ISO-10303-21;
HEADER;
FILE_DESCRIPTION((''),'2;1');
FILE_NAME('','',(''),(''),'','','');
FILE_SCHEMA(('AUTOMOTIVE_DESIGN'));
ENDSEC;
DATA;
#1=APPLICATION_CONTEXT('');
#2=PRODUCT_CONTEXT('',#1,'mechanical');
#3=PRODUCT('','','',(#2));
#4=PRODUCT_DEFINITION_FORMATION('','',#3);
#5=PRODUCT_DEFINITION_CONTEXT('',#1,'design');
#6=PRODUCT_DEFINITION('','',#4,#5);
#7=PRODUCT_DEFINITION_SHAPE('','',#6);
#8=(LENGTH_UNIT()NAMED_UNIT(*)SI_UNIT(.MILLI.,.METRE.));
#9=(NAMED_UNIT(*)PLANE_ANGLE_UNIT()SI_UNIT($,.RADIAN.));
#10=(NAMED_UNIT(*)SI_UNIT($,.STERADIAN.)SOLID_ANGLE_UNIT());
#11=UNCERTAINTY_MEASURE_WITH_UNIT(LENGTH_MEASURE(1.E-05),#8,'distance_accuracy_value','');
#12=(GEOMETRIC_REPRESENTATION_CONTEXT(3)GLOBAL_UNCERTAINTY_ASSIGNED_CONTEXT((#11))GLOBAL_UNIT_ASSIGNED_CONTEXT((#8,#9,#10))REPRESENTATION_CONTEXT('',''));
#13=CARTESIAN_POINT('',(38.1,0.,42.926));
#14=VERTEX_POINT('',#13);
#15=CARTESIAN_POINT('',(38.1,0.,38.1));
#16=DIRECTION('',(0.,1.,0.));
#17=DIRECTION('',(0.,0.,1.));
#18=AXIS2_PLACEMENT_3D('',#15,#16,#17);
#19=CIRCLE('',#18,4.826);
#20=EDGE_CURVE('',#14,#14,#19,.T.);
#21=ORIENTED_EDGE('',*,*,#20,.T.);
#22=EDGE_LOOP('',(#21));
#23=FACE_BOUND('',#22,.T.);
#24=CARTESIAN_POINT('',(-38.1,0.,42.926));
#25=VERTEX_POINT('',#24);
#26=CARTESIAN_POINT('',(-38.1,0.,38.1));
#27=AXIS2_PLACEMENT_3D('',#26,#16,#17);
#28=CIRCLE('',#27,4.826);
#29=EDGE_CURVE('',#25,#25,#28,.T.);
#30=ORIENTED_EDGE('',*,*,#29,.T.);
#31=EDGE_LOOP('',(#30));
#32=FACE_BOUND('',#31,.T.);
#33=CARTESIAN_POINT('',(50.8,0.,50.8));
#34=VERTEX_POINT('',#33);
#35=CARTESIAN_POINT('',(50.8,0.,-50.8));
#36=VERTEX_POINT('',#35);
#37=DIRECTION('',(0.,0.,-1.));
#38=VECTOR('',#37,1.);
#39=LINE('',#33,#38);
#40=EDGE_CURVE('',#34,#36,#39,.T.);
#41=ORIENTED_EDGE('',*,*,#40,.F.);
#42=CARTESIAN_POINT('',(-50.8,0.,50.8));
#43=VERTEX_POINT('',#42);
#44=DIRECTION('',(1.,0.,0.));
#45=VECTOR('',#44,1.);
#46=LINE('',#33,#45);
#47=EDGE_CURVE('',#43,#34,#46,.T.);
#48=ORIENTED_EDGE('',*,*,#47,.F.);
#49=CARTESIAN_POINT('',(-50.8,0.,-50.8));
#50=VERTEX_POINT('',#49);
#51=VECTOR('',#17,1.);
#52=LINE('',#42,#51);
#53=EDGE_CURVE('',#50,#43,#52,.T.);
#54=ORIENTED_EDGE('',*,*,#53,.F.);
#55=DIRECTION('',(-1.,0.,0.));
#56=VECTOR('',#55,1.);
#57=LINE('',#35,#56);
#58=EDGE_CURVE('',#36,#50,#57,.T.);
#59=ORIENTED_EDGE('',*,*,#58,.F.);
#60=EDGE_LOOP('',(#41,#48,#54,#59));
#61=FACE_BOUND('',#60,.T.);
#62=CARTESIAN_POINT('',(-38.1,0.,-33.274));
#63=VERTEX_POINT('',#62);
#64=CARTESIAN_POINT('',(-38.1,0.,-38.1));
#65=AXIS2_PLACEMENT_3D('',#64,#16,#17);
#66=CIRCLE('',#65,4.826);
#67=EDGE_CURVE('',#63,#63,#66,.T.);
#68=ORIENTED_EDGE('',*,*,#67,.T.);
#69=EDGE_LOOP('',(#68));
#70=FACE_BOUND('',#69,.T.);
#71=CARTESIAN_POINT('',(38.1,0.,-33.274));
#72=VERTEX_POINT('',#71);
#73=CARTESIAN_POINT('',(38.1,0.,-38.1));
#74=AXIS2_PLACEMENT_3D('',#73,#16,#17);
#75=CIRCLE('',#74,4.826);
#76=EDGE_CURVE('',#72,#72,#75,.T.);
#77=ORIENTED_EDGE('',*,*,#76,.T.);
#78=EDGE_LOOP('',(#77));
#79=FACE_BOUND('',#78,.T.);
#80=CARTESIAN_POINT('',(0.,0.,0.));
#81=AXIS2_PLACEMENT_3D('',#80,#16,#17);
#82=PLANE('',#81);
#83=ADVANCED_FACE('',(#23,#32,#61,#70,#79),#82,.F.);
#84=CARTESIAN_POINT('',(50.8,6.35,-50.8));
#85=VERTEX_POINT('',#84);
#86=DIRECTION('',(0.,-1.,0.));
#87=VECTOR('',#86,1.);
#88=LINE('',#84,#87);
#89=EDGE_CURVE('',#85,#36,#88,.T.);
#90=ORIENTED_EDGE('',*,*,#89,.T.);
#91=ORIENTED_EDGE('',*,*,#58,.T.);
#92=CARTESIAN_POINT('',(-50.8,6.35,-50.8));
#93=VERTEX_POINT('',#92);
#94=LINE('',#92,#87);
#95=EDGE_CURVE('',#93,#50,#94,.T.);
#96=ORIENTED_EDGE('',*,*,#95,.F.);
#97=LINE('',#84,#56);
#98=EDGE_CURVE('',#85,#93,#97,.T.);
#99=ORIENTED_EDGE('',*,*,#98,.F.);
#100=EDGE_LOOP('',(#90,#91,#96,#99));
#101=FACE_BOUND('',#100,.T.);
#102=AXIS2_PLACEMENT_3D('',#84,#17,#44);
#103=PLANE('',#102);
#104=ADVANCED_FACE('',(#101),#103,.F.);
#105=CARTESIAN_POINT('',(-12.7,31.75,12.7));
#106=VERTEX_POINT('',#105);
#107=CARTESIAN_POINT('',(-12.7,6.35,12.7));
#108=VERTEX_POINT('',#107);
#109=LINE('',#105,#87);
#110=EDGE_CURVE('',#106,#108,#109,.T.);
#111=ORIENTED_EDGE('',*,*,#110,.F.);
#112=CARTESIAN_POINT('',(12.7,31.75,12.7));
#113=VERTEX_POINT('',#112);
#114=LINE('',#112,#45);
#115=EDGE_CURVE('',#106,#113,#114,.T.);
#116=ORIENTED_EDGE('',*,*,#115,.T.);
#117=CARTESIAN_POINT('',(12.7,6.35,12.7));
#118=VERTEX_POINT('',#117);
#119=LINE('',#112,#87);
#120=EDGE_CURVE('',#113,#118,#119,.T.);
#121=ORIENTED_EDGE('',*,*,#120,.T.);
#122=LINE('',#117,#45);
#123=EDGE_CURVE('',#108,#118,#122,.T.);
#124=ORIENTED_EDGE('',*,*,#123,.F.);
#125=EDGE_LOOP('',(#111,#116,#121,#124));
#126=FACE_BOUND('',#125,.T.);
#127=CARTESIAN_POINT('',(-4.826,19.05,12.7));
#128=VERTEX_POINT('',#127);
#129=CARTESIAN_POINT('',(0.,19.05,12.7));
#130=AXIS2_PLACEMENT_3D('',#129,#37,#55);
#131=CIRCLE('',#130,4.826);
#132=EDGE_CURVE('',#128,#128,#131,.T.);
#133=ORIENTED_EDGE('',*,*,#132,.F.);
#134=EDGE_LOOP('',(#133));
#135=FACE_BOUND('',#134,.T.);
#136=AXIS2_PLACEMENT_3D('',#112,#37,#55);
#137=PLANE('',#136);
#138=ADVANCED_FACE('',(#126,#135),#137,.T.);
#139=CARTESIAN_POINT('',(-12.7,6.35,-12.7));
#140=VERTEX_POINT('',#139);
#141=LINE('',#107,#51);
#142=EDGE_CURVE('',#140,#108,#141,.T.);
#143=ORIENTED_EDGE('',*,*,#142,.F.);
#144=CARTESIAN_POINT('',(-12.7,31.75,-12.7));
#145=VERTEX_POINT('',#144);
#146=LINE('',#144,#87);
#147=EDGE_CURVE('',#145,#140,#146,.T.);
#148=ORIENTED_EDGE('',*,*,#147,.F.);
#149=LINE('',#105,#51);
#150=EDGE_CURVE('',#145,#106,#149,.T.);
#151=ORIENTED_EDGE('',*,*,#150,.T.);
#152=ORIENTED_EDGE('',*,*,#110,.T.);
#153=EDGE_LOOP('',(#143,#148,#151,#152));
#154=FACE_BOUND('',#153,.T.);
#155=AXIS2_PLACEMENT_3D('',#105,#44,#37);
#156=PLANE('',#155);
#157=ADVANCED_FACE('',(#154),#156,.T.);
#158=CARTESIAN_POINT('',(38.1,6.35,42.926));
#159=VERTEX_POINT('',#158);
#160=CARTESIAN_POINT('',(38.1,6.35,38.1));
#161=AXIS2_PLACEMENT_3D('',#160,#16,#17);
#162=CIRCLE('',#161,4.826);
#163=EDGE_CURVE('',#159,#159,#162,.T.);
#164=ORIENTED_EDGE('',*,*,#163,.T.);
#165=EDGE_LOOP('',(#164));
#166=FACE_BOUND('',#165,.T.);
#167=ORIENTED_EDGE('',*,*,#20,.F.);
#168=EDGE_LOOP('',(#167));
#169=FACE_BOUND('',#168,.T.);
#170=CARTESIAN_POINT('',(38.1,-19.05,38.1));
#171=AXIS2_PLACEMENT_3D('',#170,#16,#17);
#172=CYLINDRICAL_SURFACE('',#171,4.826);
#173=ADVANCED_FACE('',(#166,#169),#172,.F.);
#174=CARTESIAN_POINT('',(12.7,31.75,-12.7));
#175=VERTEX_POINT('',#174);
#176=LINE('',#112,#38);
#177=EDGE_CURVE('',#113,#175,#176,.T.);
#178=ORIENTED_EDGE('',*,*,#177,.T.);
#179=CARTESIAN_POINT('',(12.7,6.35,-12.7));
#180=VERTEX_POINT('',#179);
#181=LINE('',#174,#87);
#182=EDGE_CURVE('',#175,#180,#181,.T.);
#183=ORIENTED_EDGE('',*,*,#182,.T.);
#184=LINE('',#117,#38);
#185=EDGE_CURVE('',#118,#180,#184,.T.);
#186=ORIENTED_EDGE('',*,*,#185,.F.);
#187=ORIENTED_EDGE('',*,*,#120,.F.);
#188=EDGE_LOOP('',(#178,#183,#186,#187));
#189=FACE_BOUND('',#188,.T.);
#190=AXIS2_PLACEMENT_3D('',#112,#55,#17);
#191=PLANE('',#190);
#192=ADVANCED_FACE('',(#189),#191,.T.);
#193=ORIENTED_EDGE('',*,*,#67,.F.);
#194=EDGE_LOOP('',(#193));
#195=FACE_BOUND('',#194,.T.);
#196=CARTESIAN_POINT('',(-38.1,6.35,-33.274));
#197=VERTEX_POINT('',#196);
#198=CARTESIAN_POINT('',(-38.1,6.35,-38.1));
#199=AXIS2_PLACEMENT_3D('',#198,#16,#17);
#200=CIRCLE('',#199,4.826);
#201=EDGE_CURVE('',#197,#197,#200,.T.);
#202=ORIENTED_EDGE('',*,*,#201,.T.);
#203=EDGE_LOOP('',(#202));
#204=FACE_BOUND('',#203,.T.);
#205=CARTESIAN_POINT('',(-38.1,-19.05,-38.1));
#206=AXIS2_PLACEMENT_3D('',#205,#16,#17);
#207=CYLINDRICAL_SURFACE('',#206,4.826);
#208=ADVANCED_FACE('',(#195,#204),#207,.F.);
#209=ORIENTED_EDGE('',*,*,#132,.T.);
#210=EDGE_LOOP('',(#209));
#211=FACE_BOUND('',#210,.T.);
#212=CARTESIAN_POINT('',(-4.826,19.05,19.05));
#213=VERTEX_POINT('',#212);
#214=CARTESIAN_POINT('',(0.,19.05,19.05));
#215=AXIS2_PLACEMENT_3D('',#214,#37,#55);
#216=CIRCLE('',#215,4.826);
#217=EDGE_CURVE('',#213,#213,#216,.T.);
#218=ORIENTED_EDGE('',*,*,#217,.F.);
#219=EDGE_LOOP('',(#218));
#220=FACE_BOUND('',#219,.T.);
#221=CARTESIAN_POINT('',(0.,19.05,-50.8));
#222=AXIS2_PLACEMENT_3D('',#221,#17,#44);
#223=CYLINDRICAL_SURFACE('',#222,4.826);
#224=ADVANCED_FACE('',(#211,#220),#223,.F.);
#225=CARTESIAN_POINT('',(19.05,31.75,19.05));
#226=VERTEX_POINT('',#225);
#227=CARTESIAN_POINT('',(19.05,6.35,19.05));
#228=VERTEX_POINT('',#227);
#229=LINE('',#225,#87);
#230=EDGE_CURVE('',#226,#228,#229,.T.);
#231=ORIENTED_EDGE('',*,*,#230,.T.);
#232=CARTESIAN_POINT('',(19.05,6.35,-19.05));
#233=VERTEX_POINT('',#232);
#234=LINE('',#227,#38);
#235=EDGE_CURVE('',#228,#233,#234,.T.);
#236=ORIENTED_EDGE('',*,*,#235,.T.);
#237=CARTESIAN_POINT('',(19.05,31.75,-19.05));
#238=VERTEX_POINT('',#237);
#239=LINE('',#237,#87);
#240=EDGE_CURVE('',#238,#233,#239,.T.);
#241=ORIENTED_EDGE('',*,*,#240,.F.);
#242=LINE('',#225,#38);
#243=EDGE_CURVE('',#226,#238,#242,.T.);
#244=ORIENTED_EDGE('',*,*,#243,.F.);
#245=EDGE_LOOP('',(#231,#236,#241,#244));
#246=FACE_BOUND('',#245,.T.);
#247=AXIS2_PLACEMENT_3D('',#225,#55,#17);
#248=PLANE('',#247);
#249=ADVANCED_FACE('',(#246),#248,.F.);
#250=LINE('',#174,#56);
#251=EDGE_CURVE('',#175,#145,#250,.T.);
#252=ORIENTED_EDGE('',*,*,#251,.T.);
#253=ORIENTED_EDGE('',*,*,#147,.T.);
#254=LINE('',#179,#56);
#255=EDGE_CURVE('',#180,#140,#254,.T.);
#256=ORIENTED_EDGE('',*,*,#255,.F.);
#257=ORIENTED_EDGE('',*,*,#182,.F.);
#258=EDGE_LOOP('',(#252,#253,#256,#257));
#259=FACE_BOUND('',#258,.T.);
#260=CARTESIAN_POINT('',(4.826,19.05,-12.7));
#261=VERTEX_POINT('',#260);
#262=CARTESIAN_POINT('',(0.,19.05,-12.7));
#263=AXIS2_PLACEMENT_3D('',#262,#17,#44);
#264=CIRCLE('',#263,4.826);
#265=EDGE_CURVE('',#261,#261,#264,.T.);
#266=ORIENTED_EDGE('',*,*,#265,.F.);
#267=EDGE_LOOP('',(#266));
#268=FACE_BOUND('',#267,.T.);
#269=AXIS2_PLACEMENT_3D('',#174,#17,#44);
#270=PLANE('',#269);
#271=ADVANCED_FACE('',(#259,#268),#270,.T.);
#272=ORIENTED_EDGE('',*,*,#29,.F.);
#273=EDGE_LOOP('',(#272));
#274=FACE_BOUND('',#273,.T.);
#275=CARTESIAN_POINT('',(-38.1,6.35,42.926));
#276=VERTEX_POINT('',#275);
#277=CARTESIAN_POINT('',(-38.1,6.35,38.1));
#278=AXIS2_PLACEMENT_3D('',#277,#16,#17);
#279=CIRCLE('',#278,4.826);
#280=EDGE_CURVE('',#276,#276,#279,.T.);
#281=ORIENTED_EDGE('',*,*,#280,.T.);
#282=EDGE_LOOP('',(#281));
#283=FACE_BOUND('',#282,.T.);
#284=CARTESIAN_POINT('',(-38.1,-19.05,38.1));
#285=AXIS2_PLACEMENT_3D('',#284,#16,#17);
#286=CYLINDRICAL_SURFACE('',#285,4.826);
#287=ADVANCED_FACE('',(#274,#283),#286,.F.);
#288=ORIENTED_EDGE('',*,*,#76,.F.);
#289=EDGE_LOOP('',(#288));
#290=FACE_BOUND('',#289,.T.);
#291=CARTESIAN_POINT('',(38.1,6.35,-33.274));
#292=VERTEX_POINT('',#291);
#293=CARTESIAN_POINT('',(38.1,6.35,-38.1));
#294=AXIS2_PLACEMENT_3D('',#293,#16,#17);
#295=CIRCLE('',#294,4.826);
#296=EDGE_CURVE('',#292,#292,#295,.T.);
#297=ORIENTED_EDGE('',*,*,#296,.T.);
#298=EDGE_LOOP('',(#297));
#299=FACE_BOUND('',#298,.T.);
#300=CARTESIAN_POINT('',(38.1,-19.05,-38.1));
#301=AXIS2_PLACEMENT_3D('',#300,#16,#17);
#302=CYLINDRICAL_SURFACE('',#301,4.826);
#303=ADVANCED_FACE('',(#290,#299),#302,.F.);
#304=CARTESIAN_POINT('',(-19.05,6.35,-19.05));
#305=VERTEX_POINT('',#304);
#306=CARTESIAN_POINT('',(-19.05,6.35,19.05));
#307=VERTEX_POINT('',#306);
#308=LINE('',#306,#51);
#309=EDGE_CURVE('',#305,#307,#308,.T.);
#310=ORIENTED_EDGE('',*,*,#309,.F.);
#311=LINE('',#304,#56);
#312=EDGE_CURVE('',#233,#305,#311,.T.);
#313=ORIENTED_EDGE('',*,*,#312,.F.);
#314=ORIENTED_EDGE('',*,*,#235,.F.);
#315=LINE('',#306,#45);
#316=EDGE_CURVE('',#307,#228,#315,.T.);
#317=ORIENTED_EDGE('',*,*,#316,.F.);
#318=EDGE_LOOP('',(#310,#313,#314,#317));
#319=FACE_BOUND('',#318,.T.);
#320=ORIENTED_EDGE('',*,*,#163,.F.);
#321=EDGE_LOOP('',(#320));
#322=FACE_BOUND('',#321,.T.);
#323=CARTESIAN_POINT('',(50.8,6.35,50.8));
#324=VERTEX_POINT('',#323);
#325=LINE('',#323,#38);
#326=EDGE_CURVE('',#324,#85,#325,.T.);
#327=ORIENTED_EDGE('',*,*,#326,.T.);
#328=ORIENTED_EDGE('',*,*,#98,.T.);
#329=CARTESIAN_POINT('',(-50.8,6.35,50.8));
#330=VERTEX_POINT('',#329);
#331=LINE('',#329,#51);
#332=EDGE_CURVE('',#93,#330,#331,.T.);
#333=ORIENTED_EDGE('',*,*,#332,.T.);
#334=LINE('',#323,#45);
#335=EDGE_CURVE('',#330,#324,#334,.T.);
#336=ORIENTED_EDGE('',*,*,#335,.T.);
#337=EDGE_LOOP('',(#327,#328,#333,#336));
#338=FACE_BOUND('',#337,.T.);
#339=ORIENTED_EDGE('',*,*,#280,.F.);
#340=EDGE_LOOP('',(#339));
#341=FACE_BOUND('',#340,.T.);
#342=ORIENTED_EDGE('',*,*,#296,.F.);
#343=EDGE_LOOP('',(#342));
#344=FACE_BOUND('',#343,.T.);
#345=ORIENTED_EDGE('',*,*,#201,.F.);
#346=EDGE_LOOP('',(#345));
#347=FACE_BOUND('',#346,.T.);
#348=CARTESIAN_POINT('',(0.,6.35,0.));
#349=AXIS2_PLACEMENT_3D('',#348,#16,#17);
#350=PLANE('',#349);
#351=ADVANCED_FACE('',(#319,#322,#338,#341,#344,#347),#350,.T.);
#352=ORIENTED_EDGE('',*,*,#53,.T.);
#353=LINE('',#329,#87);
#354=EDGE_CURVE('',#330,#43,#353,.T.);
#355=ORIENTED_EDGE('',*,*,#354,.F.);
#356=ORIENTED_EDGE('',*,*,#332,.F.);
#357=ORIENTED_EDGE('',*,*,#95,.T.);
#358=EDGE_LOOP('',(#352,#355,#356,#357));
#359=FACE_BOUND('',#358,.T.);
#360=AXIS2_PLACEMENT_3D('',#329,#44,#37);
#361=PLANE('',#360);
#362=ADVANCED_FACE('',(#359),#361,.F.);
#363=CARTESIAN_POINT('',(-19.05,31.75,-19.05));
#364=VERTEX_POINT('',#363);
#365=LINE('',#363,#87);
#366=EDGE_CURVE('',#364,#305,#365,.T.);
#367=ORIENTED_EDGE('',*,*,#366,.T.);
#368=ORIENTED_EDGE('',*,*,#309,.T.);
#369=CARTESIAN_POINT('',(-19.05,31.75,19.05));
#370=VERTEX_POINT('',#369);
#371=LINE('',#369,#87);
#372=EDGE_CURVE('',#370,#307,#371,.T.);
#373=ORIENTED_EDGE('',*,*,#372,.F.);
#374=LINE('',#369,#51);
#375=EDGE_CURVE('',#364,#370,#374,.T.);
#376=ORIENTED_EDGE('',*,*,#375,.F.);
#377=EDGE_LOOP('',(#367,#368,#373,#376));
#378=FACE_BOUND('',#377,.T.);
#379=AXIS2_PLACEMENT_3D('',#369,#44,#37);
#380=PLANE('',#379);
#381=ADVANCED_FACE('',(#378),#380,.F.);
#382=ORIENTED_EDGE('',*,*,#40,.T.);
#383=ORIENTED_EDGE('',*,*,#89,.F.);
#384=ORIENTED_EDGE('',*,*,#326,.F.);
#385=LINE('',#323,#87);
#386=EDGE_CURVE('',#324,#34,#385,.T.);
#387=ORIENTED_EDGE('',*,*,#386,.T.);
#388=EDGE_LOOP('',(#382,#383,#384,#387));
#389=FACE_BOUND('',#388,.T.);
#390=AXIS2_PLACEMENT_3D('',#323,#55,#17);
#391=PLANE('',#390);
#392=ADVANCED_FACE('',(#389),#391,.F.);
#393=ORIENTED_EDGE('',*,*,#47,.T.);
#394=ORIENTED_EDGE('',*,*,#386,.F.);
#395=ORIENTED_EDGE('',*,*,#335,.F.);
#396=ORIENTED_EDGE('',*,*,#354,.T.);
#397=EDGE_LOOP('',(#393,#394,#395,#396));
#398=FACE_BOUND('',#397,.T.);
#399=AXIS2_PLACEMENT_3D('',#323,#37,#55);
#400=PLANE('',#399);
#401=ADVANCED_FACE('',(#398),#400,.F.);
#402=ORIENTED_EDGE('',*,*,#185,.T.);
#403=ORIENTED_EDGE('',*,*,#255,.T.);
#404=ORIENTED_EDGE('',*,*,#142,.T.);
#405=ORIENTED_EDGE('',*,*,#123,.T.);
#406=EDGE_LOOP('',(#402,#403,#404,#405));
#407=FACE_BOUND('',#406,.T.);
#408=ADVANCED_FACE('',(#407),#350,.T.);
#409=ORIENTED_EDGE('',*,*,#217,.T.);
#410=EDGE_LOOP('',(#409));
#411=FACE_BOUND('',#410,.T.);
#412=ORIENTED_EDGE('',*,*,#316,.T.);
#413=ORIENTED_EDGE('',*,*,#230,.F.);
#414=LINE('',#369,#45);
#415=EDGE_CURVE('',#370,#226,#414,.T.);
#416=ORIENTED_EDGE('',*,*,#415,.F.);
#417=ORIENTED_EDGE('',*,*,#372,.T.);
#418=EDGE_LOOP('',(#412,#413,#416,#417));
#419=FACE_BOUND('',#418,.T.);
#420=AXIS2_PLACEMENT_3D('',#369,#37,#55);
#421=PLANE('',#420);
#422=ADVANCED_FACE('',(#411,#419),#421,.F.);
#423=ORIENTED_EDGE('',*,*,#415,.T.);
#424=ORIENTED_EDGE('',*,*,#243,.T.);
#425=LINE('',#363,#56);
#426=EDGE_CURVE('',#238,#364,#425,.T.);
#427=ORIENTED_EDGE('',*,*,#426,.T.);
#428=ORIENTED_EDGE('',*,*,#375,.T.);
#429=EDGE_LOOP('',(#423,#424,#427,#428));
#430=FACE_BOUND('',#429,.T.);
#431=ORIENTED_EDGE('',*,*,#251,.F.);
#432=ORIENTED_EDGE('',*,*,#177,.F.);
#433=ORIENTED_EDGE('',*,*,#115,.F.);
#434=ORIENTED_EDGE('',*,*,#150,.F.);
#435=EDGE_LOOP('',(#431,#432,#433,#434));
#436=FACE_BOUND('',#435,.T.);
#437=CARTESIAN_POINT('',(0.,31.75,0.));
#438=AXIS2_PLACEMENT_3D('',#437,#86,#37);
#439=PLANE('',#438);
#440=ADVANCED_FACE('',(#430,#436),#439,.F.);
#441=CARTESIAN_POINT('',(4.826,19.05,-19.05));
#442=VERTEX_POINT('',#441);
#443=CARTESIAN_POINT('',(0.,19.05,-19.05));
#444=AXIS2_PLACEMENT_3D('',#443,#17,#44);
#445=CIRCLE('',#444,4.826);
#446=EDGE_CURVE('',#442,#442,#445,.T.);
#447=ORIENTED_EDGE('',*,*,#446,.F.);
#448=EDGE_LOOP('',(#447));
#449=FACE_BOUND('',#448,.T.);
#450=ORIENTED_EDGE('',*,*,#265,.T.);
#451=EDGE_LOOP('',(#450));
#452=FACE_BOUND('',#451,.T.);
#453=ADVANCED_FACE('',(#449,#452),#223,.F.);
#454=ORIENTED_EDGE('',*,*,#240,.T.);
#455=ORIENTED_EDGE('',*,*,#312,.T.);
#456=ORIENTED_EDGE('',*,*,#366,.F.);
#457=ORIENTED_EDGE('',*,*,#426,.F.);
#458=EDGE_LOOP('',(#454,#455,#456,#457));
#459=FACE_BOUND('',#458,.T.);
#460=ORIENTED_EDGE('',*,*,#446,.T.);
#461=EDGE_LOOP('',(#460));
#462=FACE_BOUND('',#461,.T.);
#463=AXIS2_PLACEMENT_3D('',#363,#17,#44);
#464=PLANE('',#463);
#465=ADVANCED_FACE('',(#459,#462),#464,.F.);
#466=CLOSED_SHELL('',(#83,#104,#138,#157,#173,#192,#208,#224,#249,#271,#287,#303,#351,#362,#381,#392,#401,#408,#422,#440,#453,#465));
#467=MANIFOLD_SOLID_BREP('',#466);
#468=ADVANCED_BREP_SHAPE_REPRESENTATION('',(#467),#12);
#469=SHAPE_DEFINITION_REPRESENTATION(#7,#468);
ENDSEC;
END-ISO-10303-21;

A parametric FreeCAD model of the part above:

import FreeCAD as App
import Part
import Sketcher
from FreeCAD import Vector
Q = App.Units.Quantity


def add_polygon(sketch, points):
    """Adds a closed chain of lines whose ends are joined by coincident constraints."""
    first, n = sketch.GeometryCount, len(points)
    for a, b in zip(points, points[1:] + points[:1]):
        sketch.addGeometry(Part.LineSegment(App.Vector(*a, 0), App.Vector(*b, 0)), False)
    for i in range(n):
        sketch.addConstraint(Sketcher.Constraint("Coincident", first + i, 2, first + (i + 1) % n, 1))

doc = App.newDocument("Part")
body = doc.addObject("PartDesign::Body", "Body")

sketch1 = doc.addObject("Sketcher::SketchObject", "Sketch")
body.addObject(sketch1)
sketch1.AttachmentSupport = (doc.XZ_Plane, [""])
sketch1.MapMode = "FlatFace"
add_polygon(sketch1, [(-50.8, -50.8), (-50.8, 50.8), (50.8, 50.8), (50.8, -50.8)])
sketch1.addConstraint([
    Sketcher.Constraint("Vertical", 0),
    Sketcher.Constraint("Horizontal", 1),
    Sketcher.Constraint("Vertical", 2),
    Sketcher.Constraint("Horizontal", 3),
    Sketcher.Constraint("Symmetric", 0, 2, 2, 2, -1, 1),
    Sketcher.Constraint("Equal", 3, 0),
    Sketcher.Constraint("DistanceX", 1, 1, 1, 2, Q("4 in")),
])
pad1 = doc.addObject("PartDesign::Pad", "Pad")
body.addObject(pad1)
pad1.Profile = sketch1
pad1.Length = Q("0.25 in")
pad1.Reversed = True

sketch2 = doc.addObject("Sketcher::SketchObject", "Sketch001")
body.addObject(sketch2)
sketch2.AttachmentSupport = (doc.XZ_Plane, [""])
sketch2.MapMode = "FlatFace"
sketch2.AttachmentOffset = App.Placement(Vector(0, 0, -0.25 * 25.4), App.Rotation())
add_polygon(sketch2, [(-19.05, -19.05), (-19.05, 19.05), (19.05, 19.05), (19.05, -19.05)])
add_polygon(sketch2, [(12.7, 12.7), (-12.7, 12.7), (-12.7, -12.7), (12.7, -12.7)])
sketch2.addConstraint([
    Sketcher.Constraint("Vertical", 0),
    Sketcher.Constraint("Horizontal", 1),
    Sketcher.Constraint("Vertical", 2),
    Sketcher.Constraint("Horizontal", 3),
    Sketcher.Constraint("Horizontal", 4),
    Sketcher.Constraint("Vertical", 5),
    Sketcher.Constraint("Horizontal", 6),
    Sketcher.Constraint("Vertical", 7),
    Sketcher.Constraint("Symmetric", 0, 2, 2, 2, -1, 1),
    Sketcher.Constraint("Symmetric", 4, 2, 6, 2, -1, 1),
    Sketcher.Constraint("Equal", 3, 0),
    Sketcher.Constraint("Equal", 6, 5),
    Sketcher.Constraint("DistanceX", 4, 2, 4, 1, Q("1 in")),
    Sketcher.Constraint("DistanceX", 1, 1, 1, 2, Q("1.5 in")),
])
pad2 = doc.addObject("PartDesign::Pad", "Pad001")
body.addObject(pad2)
pad2.Profile = sketch2
pad2.Length = Q("1 in")
pad2.Reversed = True

sketch3 = doc.addObject("Sketcher::SketchObject", "Sketch002")
body.addObject(sketch3)
sketch3.AttachmentSupport = (doc.XY_Plane, [""])
sketch3.MapMode = "FlatFace"
sketch3.AttachmentOffset = App.Placement(Vector(0, 0, 0.75 * 25.4), App.Rotation())
sketch3.addGeometry(Part.Circle(Vector(0, 19.05, 0), Vector(0, 0, 1), 4.826), False)
sketch3.addConstraint([
    Sketcher.Constraint("PointOnObject", 0, 3, -2),
    Sketcher.Constraint("Diameter", 0, Q("0.38 in")),
    Sketcher.Constraint("DistanceY", -1, 1, 0, 3, Q("0.75 in")),
])
pocket1 = doc.addObject("PartDesign::Pocket", "Pocket")
body.addObject(pocket1)
pocket1.Profile = sketch3
pocket1.Type = "ThroughAll"
pocket1.Midplane = True

sketch4 = doc.addObject("Sketcher::SketchObject", "Sketch003")
body.addObject(sketch4)
sketch4.AttachmentSupport = (doc.XZ_Plane, [""])
sketch4.MapMode = "FlatFace"
sketch4.AttachmentOffset = App.Placement(Vector(0, 0, -0.25 * 25.4), App.Rotation())
sketch4.addGeometry([
    Part.Circle(Vector(-38.1, -38.1, 0), Vector(0, 0, 1), 4.826),
    Part.Circle(Vector(38.1, -38.1, 0), Vector(0, 0, 1), 4.826),
    Part.Circle(Vector(38.1, 38.1, 0), Vector(0, 0, 1), 4.826),
    Part.Circle(Vector(-38.1, 38.1, 0), Vector(0, 0, 1), 4.826),
], False)
sketch4.addConstraint([
    Sketcher.Constraint("Equal", 0, 1),
    Sketcher.Constraint("Equal", 1, 2),
    Sketcher.Constraint("Equal", 2, 3),
    Sketcher.Constraint("Symmetric", 0, 3, 2, 3, -1, 1),
    Sketcher.Constraint("Symmetric", 1, 3, 3, 3, -1, 1),
    Sketcher.Constraint("Symmetric", 0, 3, 1, 3, -2),
    Sketcher.Constraint("Diameter", 0, Q("0.38 in")),
    Sketcher.Constraint("DistanceX", 0, 3, 1, 3, Q("3 in")),
    Sketcher.Constraint("DistanceY", 1, 3, 2, 3, Q("3 in")),
])
pocket2 = doc.addObject("PartDesign::Pocket", "Pocket001")
body.addObject(pocket2)
pocket2.Profile = sketch4
pocket2.Length = Q("1 in")
pocket2.Reversed = True

doc.recompute()
